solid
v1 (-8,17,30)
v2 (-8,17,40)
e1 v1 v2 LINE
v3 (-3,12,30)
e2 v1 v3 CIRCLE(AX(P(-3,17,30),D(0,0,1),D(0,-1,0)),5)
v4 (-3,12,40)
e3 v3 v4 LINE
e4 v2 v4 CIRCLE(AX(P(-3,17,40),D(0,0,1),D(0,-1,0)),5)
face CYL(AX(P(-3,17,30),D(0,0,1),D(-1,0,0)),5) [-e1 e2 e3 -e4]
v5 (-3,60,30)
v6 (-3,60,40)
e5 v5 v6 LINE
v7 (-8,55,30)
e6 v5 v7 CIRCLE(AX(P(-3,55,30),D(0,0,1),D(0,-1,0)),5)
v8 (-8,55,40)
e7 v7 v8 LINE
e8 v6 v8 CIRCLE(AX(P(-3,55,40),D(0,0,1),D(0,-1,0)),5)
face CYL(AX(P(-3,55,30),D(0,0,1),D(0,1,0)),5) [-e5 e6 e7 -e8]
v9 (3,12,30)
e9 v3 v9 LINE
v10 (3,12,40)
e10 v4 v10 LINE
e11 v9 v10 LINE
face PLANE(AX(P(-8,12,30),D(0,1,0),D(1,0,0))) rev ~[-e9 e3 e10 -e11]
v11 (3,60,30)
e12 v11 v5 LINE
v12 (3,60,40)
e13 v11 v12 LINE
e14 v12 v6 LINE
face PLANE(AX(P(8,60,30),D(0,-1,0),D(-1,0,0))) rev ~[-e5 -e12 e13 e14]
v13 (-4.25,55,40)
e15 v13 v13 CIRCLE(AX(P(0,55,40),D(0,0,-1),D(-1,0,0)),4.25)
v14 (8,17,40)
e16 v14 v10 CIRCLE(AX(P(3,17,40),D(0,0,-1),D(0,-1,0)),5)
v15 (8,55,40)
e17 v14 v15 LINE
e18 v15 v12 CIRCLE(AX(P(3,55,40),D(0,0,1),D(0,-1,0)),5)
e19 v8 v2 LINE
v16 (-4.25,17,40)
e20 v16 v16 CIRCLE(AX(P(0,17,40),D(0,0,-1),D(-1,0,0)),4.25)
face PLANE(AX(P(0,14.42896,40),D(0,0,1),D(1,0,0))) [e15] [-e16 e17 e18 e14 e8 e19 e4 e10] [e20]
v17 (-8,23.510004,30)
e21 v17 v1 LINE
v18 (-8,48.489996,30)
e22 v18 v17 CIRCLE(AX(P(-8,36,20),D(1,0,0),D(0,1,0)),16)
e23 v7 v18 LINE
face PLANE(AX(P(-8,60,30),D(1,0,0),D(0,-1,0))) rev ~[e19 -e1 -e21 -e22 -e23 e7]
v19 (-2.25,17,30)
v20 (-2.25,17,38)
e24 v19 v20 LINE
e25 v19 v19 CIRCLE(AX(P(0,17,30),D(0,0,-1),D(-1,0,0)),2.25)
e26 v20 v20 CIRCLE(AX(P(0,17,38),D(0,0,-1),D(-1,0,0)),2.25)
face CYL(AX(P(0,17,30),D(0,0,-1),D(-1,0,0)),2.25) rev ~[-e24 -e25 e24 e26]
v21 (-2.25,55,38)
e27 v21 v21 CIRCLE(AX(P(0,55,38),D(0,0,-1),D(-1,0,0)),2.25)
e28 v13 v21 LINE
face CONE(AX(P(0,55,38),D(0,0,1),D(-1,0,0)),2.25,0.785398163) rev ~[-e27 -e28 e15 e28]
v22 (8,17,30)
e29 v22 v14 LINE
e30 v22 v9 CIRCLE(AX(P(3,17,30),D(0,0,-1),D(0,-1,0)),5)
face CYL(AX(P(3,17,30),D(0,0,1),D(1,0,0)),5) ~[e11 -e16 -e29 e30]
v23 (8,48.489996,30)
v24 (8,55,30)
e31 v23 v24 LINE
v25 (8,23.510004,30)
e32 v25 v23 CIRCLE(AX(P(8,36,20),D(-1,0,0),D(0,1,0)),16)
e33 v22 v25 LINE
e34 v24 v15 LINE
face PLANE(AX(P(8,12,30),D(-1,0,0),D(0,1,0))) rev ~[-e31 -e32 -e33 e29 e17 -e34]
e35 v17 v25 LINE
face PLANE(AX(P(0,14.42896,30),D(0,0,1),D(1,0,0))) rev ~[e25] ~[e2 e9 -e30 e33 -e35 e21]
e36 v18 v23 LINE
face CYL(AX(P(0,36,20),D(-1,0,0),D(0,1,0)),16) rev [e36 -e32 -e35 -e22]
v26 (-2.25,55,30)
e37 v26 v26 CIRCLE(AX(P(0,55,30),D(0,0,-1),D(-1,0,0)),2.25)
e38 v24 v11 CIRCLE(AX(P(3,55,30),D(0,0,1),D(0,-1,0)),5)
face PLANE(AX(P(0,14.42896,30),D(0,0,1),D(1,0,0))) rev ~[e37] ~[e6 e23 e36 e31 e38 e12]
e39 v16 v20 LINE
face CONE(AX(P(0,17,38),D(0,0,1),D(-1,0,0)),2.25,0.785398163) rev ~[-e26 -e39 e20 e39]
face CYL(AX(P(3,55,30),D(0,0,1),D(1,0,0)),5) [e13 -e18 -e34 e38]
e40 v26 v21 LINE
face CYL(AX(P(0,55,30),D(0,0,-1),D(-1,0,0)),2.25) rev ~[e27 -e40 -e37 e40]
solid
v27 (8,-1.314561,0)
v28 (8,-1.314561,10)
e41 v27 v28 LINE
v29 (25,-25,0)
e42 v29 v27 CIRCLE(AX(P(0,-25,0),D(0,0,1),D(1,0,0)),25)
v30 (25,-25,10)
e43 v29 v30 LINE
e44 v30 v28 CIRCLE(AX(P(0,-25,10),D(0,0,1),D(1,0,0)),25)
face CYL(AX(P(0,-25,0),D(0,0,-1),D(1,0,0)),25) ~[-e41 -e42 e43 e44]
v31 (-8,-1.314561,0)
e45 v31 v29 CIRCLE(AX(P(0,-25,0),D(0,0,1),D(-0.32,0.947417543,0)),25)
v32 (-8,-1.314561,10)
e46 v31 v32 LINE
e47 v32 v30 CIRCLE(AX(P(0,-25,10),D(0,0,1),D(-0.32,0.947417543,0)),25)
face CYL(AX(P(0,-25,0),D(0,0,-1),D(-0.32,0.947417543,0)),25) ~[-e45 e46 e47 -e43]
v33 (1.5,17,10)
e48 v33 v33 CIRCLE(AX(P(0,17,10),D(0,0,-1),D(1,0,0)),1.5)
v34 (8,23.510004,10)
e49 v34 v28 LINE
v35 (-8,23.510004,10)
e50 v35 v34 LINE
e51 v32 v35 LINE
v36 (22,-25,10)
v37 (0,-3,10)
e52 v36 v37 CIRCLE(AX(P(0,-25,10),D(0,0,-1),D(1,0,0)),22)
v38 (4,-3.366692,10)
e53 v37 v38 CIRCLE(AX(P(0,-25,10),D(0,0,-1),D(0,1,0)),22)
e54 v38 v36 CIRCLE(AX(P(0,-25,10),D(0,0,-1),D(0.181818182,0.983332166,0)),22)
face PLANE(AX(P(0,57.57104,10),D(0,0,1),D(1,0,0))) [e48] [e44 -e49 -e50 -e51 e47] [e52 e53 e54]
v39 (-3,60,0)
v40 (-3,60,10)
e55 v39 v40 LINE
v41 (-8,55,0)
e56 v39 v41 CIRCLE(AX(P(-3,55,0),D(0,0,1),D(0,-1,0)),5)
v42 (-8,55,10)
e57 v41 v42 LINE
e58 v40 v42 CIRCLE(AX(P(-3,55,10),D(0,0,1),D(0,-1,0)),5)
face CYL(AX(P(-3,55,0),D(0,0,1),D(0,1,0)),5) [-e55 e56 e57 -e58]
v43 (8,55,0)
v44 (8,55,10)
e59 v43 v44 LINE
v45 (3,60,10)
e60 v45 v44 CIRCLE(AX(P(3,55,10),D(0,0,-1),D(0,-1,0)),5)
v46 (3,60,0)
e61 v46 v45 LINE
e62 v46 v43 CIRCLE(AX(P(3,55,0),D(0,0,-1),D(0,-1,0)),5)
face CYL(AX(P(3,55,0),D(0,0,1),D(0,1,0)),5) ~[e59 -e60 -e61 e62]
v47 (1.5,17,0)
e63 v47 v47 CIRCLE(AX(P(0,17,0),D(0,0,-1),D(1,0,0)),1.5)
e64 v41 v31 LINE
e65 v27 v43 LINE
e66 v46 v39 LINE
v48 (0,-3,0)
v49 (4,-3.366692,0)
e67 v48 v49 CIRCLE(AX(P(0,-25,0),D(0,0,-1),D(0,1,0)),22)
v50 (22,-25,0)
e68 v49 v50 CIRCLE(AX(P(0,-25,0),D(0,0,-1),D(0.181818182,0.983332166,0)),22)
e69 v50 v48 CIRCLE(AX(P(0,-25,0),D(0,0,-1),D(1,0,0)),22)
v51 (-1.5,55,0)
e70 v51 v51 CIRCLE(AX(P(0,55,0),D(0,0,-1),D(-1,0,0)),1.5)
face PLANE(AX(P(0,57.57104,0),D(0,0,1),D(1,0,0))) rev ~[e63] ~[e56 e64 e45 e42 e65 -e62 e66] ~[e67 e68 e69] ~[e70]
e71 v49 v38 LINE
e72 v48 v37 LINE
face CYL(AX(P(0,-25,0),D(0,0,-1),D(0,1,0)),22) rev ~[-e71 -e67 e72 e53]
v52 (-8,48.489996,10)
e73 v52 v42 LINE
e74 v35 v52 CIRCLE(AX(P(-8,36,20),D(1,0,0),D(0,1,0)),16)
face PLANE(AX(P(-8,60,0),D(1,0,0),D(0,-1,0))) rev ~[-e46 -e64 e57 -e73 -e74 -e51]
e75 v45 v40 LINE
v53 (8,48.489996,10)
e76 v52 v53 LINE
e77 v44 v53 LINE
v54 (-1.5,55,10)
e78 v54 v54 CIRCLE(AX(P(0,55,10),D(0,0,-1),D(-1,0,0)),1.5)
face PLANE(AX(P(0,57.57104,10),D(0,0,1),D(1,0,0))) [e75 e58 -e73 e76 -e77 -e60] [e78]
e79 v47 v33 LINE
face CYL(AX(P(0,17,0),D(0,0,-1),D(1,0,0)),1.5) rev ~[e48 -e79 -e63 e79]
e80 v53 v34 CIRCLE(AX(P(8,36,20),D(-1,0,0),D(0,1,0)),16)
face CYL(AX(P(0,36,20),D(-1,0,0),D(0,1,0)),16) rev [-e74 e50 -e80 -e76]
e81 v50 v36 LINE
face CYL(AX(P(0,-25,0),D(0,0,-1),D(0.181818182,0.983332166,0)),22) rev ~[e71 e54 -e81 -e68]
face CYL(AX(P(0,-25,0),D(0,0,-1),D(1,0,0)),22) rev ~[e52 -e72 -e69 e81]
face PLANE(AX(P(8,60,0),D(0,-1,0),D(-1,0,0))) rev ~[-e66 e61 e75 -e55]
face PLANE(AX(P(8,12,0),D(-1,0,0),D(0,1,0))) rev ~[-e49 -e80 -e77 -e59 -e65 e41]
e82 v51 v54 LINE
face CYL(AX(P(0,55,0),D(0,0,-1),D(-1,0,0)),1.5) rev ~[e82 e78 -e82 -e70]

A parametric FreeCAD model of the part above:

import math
import FreeCAD as App
import Part
import Sketcher


def edges_at(feature, points):
    """Names of the edges that pass closest to the given points."""
    edges = feature.Shape.Edges
    near = lambda p: min(range(len(edges)), key=lambda i: edges[i].distToShape(Part.Vertex(*p))[0])
    return sorted({f"Edge{near(p) + 1}" for p in points})

doc = App.newDocument("Part")
body = doc.addObject("PartDesign::Body", "Body")

# Sketch on XY plane
sketch1 = body.newObject("Sketcher::SketchObject", "Sketch")
sketch1.AttachmentSupport = (doc.getObject("XY_Plane"), [""])
sketch1.MapMode = "FlatFace"
sketch1.addGeometry([
    Part.LineSegment(App.Vector(-8, 10, 0), App.Vector(-8, -1.3, 0)),  # 0
    Part.ArcOfCircle(Part.Circle(App.Vector(0, -25, 0), App.Vector(0, 0, 1), 25), math.radians(109), math.radians(360)),  # 1
    Part.ArcOfCircle(Part.Circle(App.Vector(0, -25, 0), App.Vector(0, 0, 1), 25), math.radians(0), math.radians(71)),  # 2
    Part.LineSegment(App.Vector(8, -1.3, 0), App.Vector(8, 12, 0)),  # 3
    Part.LineSegment(App.Vector(8, 12, 0), App.Vector(0, 12, 0)),  # 4
    Part.LineSegment(App.Vector(0, 12, 0), App.Vector(0, 10, 0)),  # 5
    Part.LineSegment(App.Vector(0, 10, 0), App.Vector(-8, 10, 0)),  # 6
    Part.ArcOfCircle(Part.Circle(App.Vector(0, -25, 0), App.Vector(0, 0, 1), 22), math.radians(0), math.radians(80)),  # 7
    Part.ArcOfCircle(Part.Circle(App.Vector(0, -25, 0), App.Vector(0, 0, 1), 22), math.radians(90), math.radians(360)),  # 8
    Part.ArcOfCircle(Part.Circle(App.Vector(0, -25, 0), App.Vector(0, 0, 1), 22), math.radians(79.52), math.radians(90)),  # 9
], False)
sketch1.addConstraint([
    Sketcher.Constraint("Coincident", 0, 2, 1, 1),
    Sketcher.Constraint("Tangent", 1, 2, 2, 1),
    Sketcher.Constraint("Coincident", 2, 2, 3, 1),
    Sketcher.Constraint("Coincident", 3, 2, 4, 1),
    Sketcher.Constraint("Coincident", 4, 2, 5, 1),
    Sketcher.Constraint("Coincident", 5, 2, 6, 1),
    Sketcher.Constraint("Coincident", 6, 2, 0, 1),
    Sketcher.Constraint("Tangent", 7, 1, 8, 2),
    Sketcher.Constraint("Tangent", 8, 1, 9, 2),
    Sketcher.Constraint("Tangent", 9, 1, 7, 2),
    Sketcher.Constraint("Vertical", 0),
    Sketcher.Constraint("Vertical", 3),
    Sketcher.Constraint("Horizontal", 4),
    Sketcher.Constraint("Vertical", 5),
    Sketcher.Constraint("Horizontal", 6),
    Sketcher.Constraint("Coincident", 7, 3, 1, 3),
    Sketcher.Constraint("Equal", 1, 2),
    Sketcher.Constraint("Symmetric", 0, 2, 2, 2, -2),
    Sketcher.Constraint("PointOnObject", 4, 2, -2),
    Sketcher.Constraint("PointOnObject", 8, 1, -2),
    Sketcher.Constraint("Horizontal", 9, 3, 1, 2),
    Sketcher.Constraint("Horizontal", 1, 2, 7, 1),
    Sketcher.Constraint("Radius", 1, 25.0),
    Sketcher.Constraint("Radius", 7, 22.0),
    Sketcher.Constraint("DistanceX", 4, 2, 4, 1, 8.0),
    Sketcher.Constraint("DistanceY", 5, 2, 5, 1, 2.0),
    Sketcher.Constraint("DistanceY", 1, 3, -1, 1, 25.0),
    Sketcher.Constraint("DistanceY", -1, 1, 3, 2, 12.0),
    Sketcher.Constraint("DistanceX", -1, 1, 9, 1, 4.0),
])
pad1 = body.newObject("PartDesign::Pad", "Pad")
pad1.Profile = sketch1
pad1.Length = 10

# Sketch on XY plane
sketch2 = body.newObject("Sketcher::SketchObject", "Sketch001")
sketch2.AttachmentSupport = (doc.getObject("XY_Plane"), [""])
sketch2.MapMode = "FlatFace"
sketch2.addGeometry([
    Part.LineSegment(App.Vector(8, 60, 0), App.Vector(-8, 60, 0)),  # 0
    Part.LineSegment(App.Vector(-8, 60, 0), App.Vector(-8, 10, 0)),  # 1
    Part.LineSegment(App.Vector(-8, 10, 0), App.Vector(0, 10, 0)),  # 2
    Part.LineSegment(App.Vector(0, 10, 0), App.Vector(0, 12, 0)),  # 3
    Part.LineSegment(App.Vector(0, 12, 0), App.Vector(8, 12, 0)),  # 4
    Part.LineSegment(App.Vector(8, 12, 0), App.Vector(8, 60, 0)),  # 5
    Part.Circle(App.Vector(0, 17, 0), App.Vector(0, 0, 1), 1.5),  # 6
    Part.Circle(App.Vector(0, 55, 0), App.Vector(0, 0, 1), 1.5),  # 7
], False)
sketch2.addConstraint([
    Sketcher.Constraint("Coincident", 0, 2, 1, 1),
    Sketcher.Constraint("Coincident", 1, 2, 2, 1),
    Sketcher.Constraint("Coincident", 2, 2, 3, 1),
    Sketcher.Constraint("Coincident", 3, 2, 4, 1),
    Sketcher.Constraint("Coincident", 4, 2, 5, 1),
    Sketcher.Constraint("Coincident", 5, 2, 0, 1),
    Sketcher.Constraint("Horizontal", 0),
    Sketcher.Constraint("Vertical", 1),
    Sketcher.Constraint("Horizontal", 2),
    Sketcher.Constraint("Vertical", 3),
    Sketcher.Constraint("Horizontal", 4),
    Sketcher.Constraint("Vertical", 5),
    Sketcher.Constraint("Equal", 6, 7),
    Sketcher.Constraint("PointOnObject", 6, 3, -2),
    Sketcher.Constraint("PointOnObject", 7, 3, -2),
    Sketcher.Constraint("PointOnObject", 2, 2, -2),
    Sketcher.Constraint("Equal", 2, 4),
    Sketcher.Constraint("Diameter", 6, 3.0),
    Sketcher.Constraint("DistanceX", 0, 2, 0, 1, 16.0),
    Sketcher.Constraint("DistanceY", 1, 2, 1, 1, 50.0),
    Sketcher.Constraint("DistanceY", 3, 1, 3, 2, 2.0),
    Sketcher.Constraint("DistanceY", -1, 1, 6, 3, 17.0),
    Sketcher.Constraint("DistanceY", -1, 1, 7, 3, 55.0),
    Sketcher.Constraint("DistanceY", -1, 1, 0, 2, 60.0),
])
pad2 = body.newObject("PartDesign::Pad", "Pad001")
pad2.Profile = sketch2
pad2.Length = 10
body2 = doc.addObject("PartDesign::Body", "Body001")

# Sketch on XY plane
sketch3 = body2.newObject("Sketcher::SketchObject", "Sketch002")
sketch3.AttachmentSupport = (doc.getObject("XY_Plane001"), [""])
sketch3.MapMode = "FlatFace"
sketch3.AttachmentOffset = App.Placement(App.Vector(0, 0, 30), App.Rotation())
sketch3.addGeometry([
    Part.LineSegment(App.Vector(8, 12, 0), App.Vector(8, 60, 0)),  # 0
    Part.LineSegment(App.Vector(8, 60, 0), App.Vector(-8, 60, 0)),  # 1
    Part.LineSegment(App.Vector(-8, 60, 0), App.Vector(-8, 12, 0)),  # 2
    Part.LineSegment(App.Vector(-8, 12, 0), App.Vector(8, 12, 0)),  # 3
    Part.Circle(App.Vector(0, 55, 0), App.Vector(0, 0, 1), 2.2),  # 4
    Part.Circle(App.Vector(0, 17, 0), App.Vector(0, 0, 1), 2.2),  # 5
], False)
sketch3.addConstraint([
    Sketcher.Constraint("Coincident", 0, 2, 1, 1),
    Sketcher.Constraint("Coincident", 1, 2, 2, 1),
    Sketcher.Constraint("Coincident", 2, 2, 3, 1),
    Sketcher.Constraint("Coincident", 3, 2, 0, 1),
    Sketcher.Constraint("Vertical", 0),
    Sketcher.Constraint("Horizontal", 1),
    Sketcher.Constraint("Vertical", 2),
    Sketcher.Constraint("Horizontal", 3),
    Sketcher.Constraint("Equal", 4, 5),
    Sketcher.Constraint("PointOnObject", 4, 3, -2),
    Sketcher.Constraint("PointOnObject", 5, 3, -2),
    Sketcher.Constraint("Diameter", 4, 4.5),
    Sketcher.Constraint("DistanceX", 1, 2, 1, 1, 16.0),
    Sketcher.Constraint("DistanceY", 0, 1, 0, 2, 48.0),
    Sketcher.Constraint("DistanceY", -1, 1, 4, 3, 55.0),
    Sketcher.Constraint("DistanceY", -1, 1, 5, 3, 17.0),
    Sketcher.Constraint("DistanceX", -1, 1, 0, 2, 8.0),
    Sketcher.Constraint("DistanceY", -1, 1, 0, 2, 60.0),
])
pad3 = body2.newObject("PartDesign::Pad", "Pad002")
pad3.Profile = sketch3
pad3.Length = 10
body3 = doc.addObject("PartDesign::Body", "Body002")

# Sketch on YZ plane
sketch4 = body3.newObject("Sketcher::SketchObject", "Sketch003")
sketch4.AttachmentSupport = (doc.getObject("YZ_Plane002"), [""])
sketch4.MapMode = "FlatFace"
sketch4.addGeometry(Part.Circle(App.Vector(36, 20, 0), App.Vector(0, 0, 1), 16), False)
sketch4.addConstraint([
    Sketcher.Constraint("Diameter", 0, 32.0),
    Sketcher.Constraint("DistanceX", -1, 1, 0, 3, 36.0),
    Sketcher.Constraint("DistanceY", -1, 1, 0, 3, 20.0),
])
pad4 = body3.newObject("PartDesign::Pad", "Pad003")
pad4.Profile = sketch4
pad4.Type = "TwoLengths"
pad4.Length = 25
pad4.Length2 = 25
pad4.Reversed = True
doc.recompute()

body4 = doc.addObject("PartDesign::Body", "Body003")
body4.BaseFeature = body3
boolean = body.newObject("PartDesign::Boolean", "Boolean")
boolean.Type = "Cut"
boolean.addObjects([body4])
doc.recompute()

# Sketch on YZ plane
sketch5 = body.newObject("Sketcher::SketchObject", "Sketch004")
sketch5.AttachmentSupport = (doc.getObject("YZ_Plane"), [""])
sketch5.MapMode = "FlatFace"
sketch5.addGeometry(Part.Circle(App.Vector(36, 20, 0), App.Vector(0, 0, 1), 16), False)
sketch5.addConstraint([
    Sketcher.Constraint("Diameter", 0, 32.0),
    Sketcher.Constraint("DistanceX", -1, 1, 0, 3, 36.0),
    Sketcher.Constraint("DistanceY", -1, 1, 0, 3, 20.0),
])
pocket1 = body.newObject("PartDesign::Pocket", "Pocket")
pocket1.Profile = sketch5
pocket1.Type = "ThroughAll"
pocket1.Midplane = True
doc.recompute()

fillet = body.newObject("PartDesign::Fillet", "Fillet")
fillet.Base = (pocket1, edges_at(pocket1, [(-8, 60, 5), (8, 60, 5)]))
fillet.Radius = 5
doc.recompute()

boolean2 = body2.newObject("PartDesign::Boolean", "Boolean001")
boolean2.Type = "Cut"
boolean2.addObjects([body3])
doc.recompute()

chamfer = body2.newObject("PartDesign::Chamfer", "Chamfer")
chamfer.Base = (boolean2, edges_at(boolean2, [(2.25, 17, 40), (2.25, 55, 40)]))
chamfer.Size = 2
doc.recompute()

fillet2 = body2.newObject("PartDesign::Fillet", "Fillet001")
fillet2.Base = (chamfer, edges_at(chamfer, [
    (8, 12, 35),
    (-8, 12, 35),
    (-8, 60, 35),
    (8, 60, 35),
]))
fillet2.Radius = 5

doc.recompute()
